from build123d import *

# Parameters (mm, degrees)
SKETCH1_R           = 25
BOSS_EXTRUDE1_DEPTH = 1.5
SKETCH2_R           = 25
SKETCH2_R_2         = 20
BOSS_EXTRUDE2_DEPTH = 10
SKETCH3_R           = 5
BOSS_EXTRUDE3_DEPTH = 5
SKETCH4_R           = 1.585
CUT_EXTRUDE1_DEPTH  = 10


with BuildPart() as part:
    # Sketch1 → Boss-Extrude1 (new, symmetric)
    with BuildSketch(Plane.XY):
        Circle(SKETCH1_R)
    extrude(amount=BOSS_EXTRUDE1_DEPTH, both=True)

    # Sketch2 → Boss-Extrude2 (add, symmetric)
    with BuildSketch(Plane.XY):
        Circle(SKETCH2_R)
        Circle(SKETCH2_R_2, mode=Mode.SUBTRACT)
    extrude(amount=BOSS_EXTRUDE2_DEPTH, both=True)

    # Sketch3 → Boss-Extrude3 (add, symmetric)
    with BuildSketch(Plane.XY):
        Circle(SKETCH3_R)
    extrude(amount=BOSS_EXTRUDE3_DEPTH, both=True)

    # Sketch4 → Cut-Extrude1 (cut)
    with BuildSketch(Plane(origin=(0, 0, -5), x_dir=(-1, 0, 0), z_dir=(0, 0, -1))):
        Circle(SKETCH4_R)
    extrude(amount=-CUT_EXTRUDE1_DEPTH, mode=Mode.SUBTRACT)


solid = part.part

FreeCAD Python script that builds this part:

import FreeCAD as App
import Part
import Sketcher
Q = App.Units.Quantity

doc = App.newDocument("Part")
params = doc.addObject("Spreadsheet::Sheet", "Params")
for row, (alias, value) in enumerate([
    ("sketch1_diameter", "50 mm"),
    ("pad1_length", "3 mm"),
    ("sketch2_diameter", "50 mm"),
    ("sketch2_diameter2", "40 mm"),
    ("pad2_length", "20 mm"),
    ("sketch3_diameter", "10 mm"),
    ("pad3_length", "10 mm"),
    ("sketch4_diameter", "3.17 mm"),
    ("pocket1_length", "10 mm"),
], start=1):
    params.set(f"A{row}", alias)
    params.set(f"B{row}", "=" + value)
    params.setAlias(f"B{row}", alias)

body = doc.addObject("PartDesign::Body", "Body")

# Sketch on XY plane
sketch1 = doc.addObject("Sketcher::SketchObject", "Sketch")
body.addObject(sketch1)
sketch1.AttachmentSupport = (doc.XY_Plane, [""])
sketch1.MapMode = "FlatFace"
sketch1.addGeometry(Part.Circle(App.Vector(0, 0, 0), App.Vector(0, 0, 1), 25), False)
sketch1.addConstraint([
    Sketcher.Constraint("Coincident", 0, 3, -1, 1),
    Sketcher.Constraint("Diameter", 0, Q("50 mm")),
])
sketch1.setExpression("Constraints[1]", "Params.sketch1_diameter")
pad1 = doc.addObject("PartDesign::Pad", "Pad")
body.addObject(pad1)
pad1.Profile = sketch1
pad1.setExpression("Length", "Params.pad1_length")
pad1.Midplane = True

# Sketch on XY plane
sketch2 = doc.addObject("Sketcher::SketchObject", "Sketch001")
body.addObject(sketch2)
sketch2.AttachmentSupport = (doc.XY_Plane, [""])
sketch2.MapMode = "FlatFace"
sketch2.addGeometry([
    Part.Circle(App.Vector(0, 0, 0), App.Vector(0, 0, 1), 25),
    Part.Circle(App.Vector(0, 0, 0), App.Vector(0, 0, 1), 20),
], False)
sketch2.addConstraint([
    Sketcher.Constraint("Coincident", 0, 3, -1, 1),
    Sketcher.Constraint("Coincident", 1, 3, -1, 1),
    Sketcher.Constraint("Diameter", 0, Q("50 mm")),
    Sketcher.Constraint("Diameter", 1, Q("40 mm")),
])
sketch2.setExpression("Constraints[2]", "Params.sketch2_diameter")
sketch2.setExpression("Constraints[3]", "Params.sketch2_diameter2")
pad2 = doc.addObject("PartDesign::Pad", "Pad001")
body.addObject(pad2)
pad2.Profile = sketch2
pad2.setExpression("Length", "Params.pad2_length")
pad2.Midplane = True

# Sketch on XY plane
sketch3 = doc.addObject("Sketcher::SketchObject", "Sketch002")
body.addObject(sketch3)
sketch3.AttachmentSupport = (doc.XY_Plane, [""])
sketch3.MapMode = "FlatFace"
sketch3.addGeometry(Part.Circle(App.Vector(0, 0, 0), App.Vector(0, 0, 1), 5), False)
sketch3.addConstraint([
    Sketcher.Constraint("Coincident", 0, 3, -1, 1),
    Sketcher.Constraint("Diameter", 0, Q("10 mm")),
])
sketch3.setExpression("Constraints[1]", "Params.sketch3_diameter")
pad3 = doc.addObject("PartDesign::Pad", "Pad002")
body.addObject(pad3)
pad3.Profile = sketch3
pad3.setExpression("Length", "Params.pad3_length")
pad3.Midplane = True

# Sketch on XY plane
sketch4 = doc.addObject("Sketcher::SketchObject", "Sketch003")
body.addObject(sketch4)
sketch4.AttachmentSupport = (doc.XY_Plane, [""])
sketch4.MapMode = "FlatFace"
sketch4.AttachmentOffset = App.Placement(App.Vector(0, 0, -5), App.Rotation())
sketch4.addGeometry(Part.Circle(App.Vector(0, 0, 0), App.Vector(0, 0, 1), 1.6), False)
sketch4.addConstraint([
    Sketcher.Constraint("Coincident", 0, 3, -1, 1),
    Sketcher.Constraint("Diameter", 0, Q("3.17 mm")),
])
sketch4.setExpression("Constraints[1]", "Params.sketch4_diameter")
pocket1 = doc.addObject("PartDesign::Pocket", "Pocket")
body.addObject(pocket1)
pocket1.Profile = sketch4
pocket1.setExpression("Length", "Params.pocket1_length")
pocket1.Reversed = True

doc.recompute()
